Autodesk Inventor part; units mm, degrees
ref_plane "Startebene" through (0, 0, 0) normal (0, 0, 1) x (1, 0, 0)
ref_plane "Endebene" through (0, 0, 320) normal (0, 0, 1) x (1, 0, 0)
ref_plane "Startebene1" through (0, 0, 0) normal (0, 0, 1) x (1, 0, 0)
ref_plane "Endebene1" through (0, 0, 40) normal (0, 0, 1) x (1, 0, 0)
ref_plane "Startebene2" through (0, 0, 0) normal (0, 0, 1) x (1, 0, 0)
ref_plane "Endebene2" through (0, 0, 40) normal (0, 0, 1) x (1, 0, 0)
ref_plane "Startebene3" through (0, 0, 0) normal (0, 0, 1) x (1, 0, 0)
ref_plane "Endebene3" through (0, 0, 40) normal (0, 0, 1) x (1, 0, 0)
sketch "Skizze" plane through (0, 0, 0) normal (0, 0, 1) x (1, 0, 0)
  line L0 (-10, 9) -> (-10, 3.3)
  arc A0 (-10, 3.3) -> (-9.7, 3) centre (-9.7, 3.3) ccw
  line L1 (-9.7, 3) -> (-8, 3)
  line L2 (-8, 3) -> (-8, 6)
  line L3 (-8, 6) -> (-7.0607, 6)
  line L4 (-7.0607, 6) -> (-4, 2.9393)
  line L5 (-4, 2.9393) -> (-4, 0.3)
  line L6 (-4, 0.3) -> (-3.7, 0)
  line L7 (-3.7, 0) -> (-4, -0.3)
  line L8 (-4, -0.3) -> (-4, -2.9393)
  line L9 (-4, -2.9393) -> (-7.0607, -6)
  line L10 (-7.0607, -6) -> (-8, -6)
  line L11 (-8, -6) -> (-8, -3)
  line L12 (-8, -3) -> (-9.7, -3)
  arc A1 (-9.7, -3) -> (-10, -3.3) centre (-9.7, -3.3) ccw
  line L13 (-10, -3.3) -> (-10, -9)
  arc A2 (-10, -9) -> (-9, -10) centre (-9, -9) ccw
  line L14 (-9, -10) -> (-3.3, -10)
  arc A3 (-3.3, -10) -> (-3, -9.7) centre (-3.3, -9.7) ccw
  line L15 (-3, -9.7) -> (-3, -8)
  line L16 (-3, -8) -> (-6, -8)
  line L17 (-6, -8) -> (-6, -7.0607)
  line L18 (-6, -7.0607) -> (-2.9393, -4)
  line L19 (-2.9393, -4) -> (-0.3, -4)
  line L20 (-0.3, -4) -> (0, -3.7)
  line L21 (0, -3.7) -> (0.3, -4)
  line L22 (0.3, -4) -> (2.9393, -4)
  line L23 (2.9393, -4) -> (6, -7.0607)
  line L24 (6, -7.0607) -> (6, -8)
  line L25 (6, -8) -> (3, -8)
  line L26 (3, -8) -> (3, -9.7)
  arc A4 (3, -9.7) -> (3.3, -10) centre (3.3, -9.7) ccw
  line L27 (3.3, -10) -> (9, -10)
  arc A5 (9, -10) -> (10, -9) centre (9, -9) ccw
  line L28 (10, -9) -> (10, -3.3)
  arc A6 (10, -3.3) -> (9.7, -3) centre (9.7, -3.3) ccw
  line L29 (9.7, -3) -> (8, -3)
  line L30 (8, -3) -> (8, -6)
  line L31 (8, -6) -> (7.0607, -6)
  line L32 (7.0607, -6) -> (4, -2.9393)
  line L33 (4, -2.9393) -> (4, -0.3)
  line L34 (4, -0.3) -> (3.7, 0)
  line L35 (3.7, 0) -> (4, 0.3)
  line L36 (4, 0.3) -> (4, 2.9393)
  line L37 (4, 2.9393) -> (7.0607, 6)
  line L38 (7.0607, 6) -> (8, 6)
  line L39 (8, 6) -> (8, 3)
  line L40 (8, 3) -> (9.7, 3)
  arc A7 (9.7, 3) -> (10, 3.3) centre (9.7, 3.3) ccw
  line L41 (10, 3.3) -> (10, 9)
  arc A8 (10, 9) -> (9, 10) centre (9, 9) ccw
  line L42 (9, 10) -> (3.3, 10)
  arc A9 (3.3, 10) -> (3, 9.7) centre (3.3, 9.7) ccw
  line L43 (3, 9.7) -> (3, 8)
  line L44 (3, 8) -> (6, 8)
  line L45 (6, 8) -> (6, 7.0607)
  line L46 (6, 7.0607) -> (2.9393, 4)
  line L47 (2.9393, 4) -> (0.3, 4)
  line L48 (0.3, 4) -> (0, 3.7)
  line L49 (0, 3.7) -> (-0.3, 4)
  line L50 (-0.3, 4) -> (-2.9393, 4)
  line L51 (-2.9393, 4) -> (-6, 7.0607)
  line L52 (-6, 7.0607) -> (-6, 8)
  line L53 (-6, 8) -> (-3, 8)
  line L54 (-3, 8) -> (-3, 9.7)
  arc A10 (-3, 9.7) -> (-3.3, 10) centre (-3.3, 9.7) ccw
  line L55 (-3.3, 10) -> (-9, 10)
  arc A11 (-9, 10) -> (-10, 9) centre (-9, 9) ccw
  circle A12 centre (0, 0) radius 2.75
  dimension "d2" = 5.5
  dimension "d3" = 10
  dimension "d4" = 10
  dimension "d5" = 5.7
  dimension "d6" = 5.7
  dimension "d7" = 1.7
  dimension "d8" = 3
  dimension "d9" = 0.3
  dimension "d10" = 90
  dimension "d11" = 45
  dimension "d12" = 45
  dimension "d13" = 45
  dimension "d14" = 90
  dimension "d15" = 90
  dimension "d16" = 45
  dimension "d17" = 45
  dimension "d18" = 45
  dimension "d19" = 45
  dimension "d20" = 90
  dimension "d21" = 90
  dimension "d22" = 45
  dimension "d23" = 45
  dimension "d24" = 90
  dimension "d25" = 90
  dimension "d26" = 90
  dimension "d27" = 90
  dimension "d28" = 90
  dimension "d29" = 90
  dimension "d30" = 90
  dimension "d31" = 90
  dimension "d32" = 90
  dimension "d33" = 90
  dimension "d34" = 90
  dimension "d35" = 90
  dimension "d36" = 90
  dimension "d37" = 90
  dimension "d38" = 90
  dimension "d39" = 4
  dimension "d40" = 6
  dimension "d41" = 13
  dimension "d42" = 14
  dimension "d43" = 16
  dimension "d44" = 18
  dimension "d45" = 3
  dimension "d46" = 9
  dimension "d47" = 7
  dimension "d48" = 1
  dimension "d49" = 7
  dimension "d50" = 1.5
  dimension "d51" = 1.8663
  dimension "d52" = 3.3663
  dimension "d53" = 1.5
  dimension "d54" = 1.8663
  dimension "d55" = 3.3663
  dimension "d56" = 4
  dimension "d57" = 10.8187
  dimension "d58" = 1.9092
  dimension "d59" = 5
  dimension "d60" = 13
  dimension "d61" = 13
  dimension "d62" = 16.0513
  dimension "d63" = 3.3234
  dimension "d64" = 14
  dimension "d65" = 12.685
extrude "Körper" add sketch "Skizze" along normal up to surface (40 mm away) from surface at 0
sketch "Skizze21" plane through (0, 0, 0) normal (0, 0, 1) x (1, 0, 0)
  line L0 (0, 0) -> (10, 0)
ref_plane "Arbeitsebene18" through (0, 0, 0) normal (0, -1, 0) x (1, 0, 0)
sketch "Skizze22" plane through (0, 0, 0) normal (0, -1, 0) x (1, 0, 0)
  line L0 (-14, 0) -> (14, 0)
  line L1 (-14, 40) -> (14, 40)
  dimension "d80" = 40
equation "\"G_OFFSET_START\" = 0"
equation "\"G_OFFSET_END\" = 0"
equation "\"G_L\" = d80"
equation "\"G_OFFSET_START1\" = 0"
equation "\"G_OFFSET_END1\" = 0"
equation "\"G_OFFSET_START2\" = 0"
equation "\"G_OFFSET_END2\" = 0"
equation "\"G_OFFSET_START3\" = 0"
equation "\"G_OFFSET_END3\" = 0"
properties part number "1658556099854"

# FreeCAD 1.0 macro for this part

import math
import FreeCAD as App
import Part
import Sketcher

V = App.Vector
Q = App.Units.Quantity

doc = App.newDocument("Part")
body = doc.addObject("PartDesign::Body", "Body")

sketch1 = body.newObject("Sketcher::SketchObject", "Sketch")
sketch1.AttachmentSupport = (doc.getObject("XY_Plane"), [""])
sketch1.MapMode = "FlatFace"
sketch1.addGeometry([
    Part.ArcOfCircle(Part.Circle(V(-9, 9, 0), V(0, 0, 1), 1), math.radians(90), math.radians(180)),
    Part.LineSegment(V(-10, 9, 0), V(-10, 3.3, 0)),
    Part.ArcOfCircle(Part.Circle(V(-9.7, 3.3, 0), V(0, 0, 1), 0.3), math.radians(180), math.radians(270)),
    Part.LineSegment(V(-9.7, 3, 0), V(-8, 3, 0)),
    Part.LineSegment(V(-8, 3, 0), V(-8, 6, 0)),
    Part.LineSegment(V(-8, 6, 0), V(-7.06, 6, 0)),
    Part.LineSegment(V(-7.06, 6, 0), V(-4, 2.94, 0)),
    Part.LineSegment(V(-4, 2.94, 0), V(-4, 0.3, 0)),
    Part.LineSegment(V(-4, 0.3, 0), V(-3.7, 0, 0)),
    Part.LineSegment(V(-3.7, 0, 0), V(-4, -0.3, 0)),
    Part.LineSegment(V(-4, -0.3, 0), V(-4, -2.94, 0)),
    Part.LineSegment(V(-4, -2.94, 0), V(-7.06, -6, 0)),
    Part.LineSegment(V(-7.06, -6, 0), V(-8, -6, 0)),
    Part.LineSegment(V(-8, -6, 0), V(-8, -3, 0)),
    Part.LineSegment(V(-8, -3, 0), V(-9.7, -3, 0)),
    Part.ArcOfCircle(Part.Circle(V(-9.7, -3.3, 0), V(0, 0, 1), 0.3), math.radians(90), math.radians(180)),
    Part.LineSegment(V(-10, -3.3, 0), V(-10, -9, 0)),
    Part.ArcOfCircle(Part.Circle(V(-9, -9, 0), V(0, 0, 1), 1), math.radians(180), math.radians(270)),
    Part.LineSegment(V(-9, -10, 0), V(-3.3, -10, 0)),
    Part.ArcOfCircle(Part.Circle(V(-3.3, -9.7, 0), V(0, 0, 1), 0.3), math.radians(-90), math.radians(0)),
    Part.LineSegment(V(-3, -9.7, 0), V(-3, -8, 0)),
    Part.LineSegment(V(-3, -8, 0), V(-6, -8, 0)),
    Part.LineSegment(V(-6, -8, 0), V(-6, -7.06, 0)),
    Part.LineSegment(V(-6, -7.06, 0), V(-2.94, -4, 0)),
    Part.LineSegment(V(-2.94, -4, 0), V(-0.3, -4, 0)),
    Part.LineSegment(V(-0.3, -4, 0), V(0, -3.7, 0)),
    Part.LineSegment(V(0, -3.7, 0), V(0.3, -4, 0)),
    Part.LineSegment(V(0.3, -4, 0), V(2.94, -4, 0)),
    Part.LineSegment(V(2.94, -4, 0), V(6, -7.06, 0)),
    Part.LineSegment(V(6, -7.06, 0), V(6, -8, 0)),
    Part.LineSegment(V(6, -8, 0), V(3, -8, 0)),
    Part.LineSegment(V(3, -8, 0), V(3, -9.7, 0)),
    Part.ArcOfCircle(Part.Circle(V(3.3, -9.7, 0), V(0, 0, 1), 0.3), math.radians(180), math.radians(270)),
    Part.LineSegment(V(3.3, -10, 0), V(9, -10, 0)),
    Part.ArcOfCircle(Part.Circle(V(9, -9, 0), V(0, 0, 1), 1), math.radians(-90), math.radians(0)),
    Part.LineSegment(V(10, -9, 0), V(10, -3.3, 0)),
    Part.ArcOfCircle(Part.Circle(V(9.7, -3.3, 0), V(0, 0, 1), 0.3), math.radians(0), math.radians(90)),
    Part.LineSegment(V(9.7, -3, 0), V(8, -3, 0)),
    Part.LineSegment(V(8, -3, 0), V(8, -6, 0)),
    Part.LineSegment(V(8, -6, 0), V(7.06, -6, 0)),
    Part.LineSegment(V(7.06, -6, 0), V(4, -2.94, 0)),
    Part.LineSegment(V(4, -2.94, 0), V(4, -0.3, 0)),
    Part.LineSegment(V(4, -0.3, 0), V(3.7, 0, 0)),
    Part.LineSegment(V(3.7, 0, 0), V(4, 0.3, 0)),
    Part.LineSegment(V(4, 0.3, 0), V(4, 2.94, 0)),
    Part.LineSegment(V(4, 2.94, 0), V(7.06, 6, 0)),
    Part.LineSegment(V(7.06, 6, 0), V(8, 6, 0)),
    Part.LineSegment(V(8, 6, 0), V(8, 3, 0)),
    Part.LineSegment(V(8, 3, 0), V(9.7, 3, 0)),
    Part.ArcOfCircle(Part.Circle(V(9.7, 3.3, 0), V(0, 0, 1), 0.3), math.radians(-90), math.radians(0)),
    Part.LineSegment(V(10, 3.3, 0), V(10, 9, 0)),
    Part.ArcOfCircle(Part.Circle(V(9, 9, 0), V(0, 0, 1), 1), math.radians(0), math.radians(90)),
    Part.LineSegment(V(9, 10, 0), V(3.3, 10, 0)),
    Part.ArcOfCircle(Part.Circle(V(3.3, 9.7, 0), V(0, 0, 1), 0.3), math.radians(90), math.radians(180)),
    Part.LineSegment(V(3, 9.7, 0), V(3, 8, 0)),
    Part.LineSegment(V(3, 8, 0), V(6, 8, 0)),
    Part.LineSegment(V(6, 8, 0), V(6, 7.06, 0)),
    Part.LineSegment(V(6, 7.06, 0), V(2.94, 4, 0)),
    Part.LineSegment(V(2.94, 4, 0), V(0.3, 4, 0)),
    Part.LineSegment(V(0.3, 4, 0), V(0, 3.7, 0)),
    Part.LineSegment(V(0, 3.7, 0), V(-0.3, 4, 0)),
    Part.LineSegment(V(-0.3, 4, 0), V(-2.94, 4, 0)),
    Part.LineSegment(V(-2.94, 4, 0), V(-6, 7.06, 0)),
    Part.LineSegment(V(-6, 7.06, 0), V(-6, 8, 0)),
    Part.LineSegment(V(-6, 8, 0), V(-3, 8, 0)),
    Part.LineSegment(V(-3, 8, 0), V(-3, 9.7, 0)),
    Part.ArcOfCircle(Part.Circle(V(-3.3, 9.7, 0), V(0, 0, 1), 0.3), math.radians(0), math.radians(90)),
    Part.LineSegment(V(-3.3, 10, 0), V(-9, 10, 0)),
    Part.Circle(V(0, 0, 0), V(0, 0, 1), 2.75),
], False)
sketch1.addConstraint([
    Sketcher.Constraint("Tangent", 0, 2, 1, 1),
    Sketcher.Constraint("Tangent", 1, 2, 2, 1),
    Sketcher.Constraint("Tangent", 2, 2, 3, 1),
    Sketcher.Constraint("Coincident", 3, 2, 4, 1),
    Sketcher.Constraint("Coincident", 4, 2, 5, 1),
    Sketcher.Constraint("Coincident", 5, 2, 6, 1),
    Sketcher.Constraint("Coincident", 6, 2, 7, 1),
    Sketcher.Constraint("Coincident", 7, 2, 8, 1),
    Sketcher.Constraint("Coincident", 8, 2, 9, 1),
    Sketcher.Constraint("Coincident", 9, 2, 10, 1),
    Sketcher.Constraint("Coincident", 10, 2, 11, 1),
    Sketcher.Constraint("Coincident", 11, 2, 12, 1),
    Sketcher.Constraint("Coincident", 12, 2, 13, 1),
    Sketcher.Constraint("Coincident", 13, 2, 14, 1),
    Sketcher.Constraint("Tangent", 14, 2, 15, 1),
    Sketcher.Constraint("Tangent", 15, 2, 16, 1),
    Sketcher.Constraint("Tangent", 16, 2, 17, 1),
    Sketcher.Constraint("Tangent", 17, 2, 18, 1),
    Sketcher.Constraint("Tangent", 18, 2, 19, 1),
    Sketcher.Constraint("Tangent", 19, 2, 20, 1),
    Sketcher.Constraint("Coincident", 20, 2, 21, 1),
    Sketcher.Constraint("Coincident", 21, 2, 22, 1),
    Sketcher.Constraint("Coincident", 22, 2, 23, 1),
    Sketcher.Constraint("Coincident", 23, 2, 24, 1),
    Sketcher.Constraint("Coincident", 24, 2, 25, 1),
    Sketcher.Constraint("Coincident", 25, 2, 26, 1),
    Sketcher.Constraint("Coincident", 26, 2, 27, 1),
    Sketcher.Constraint("Coincident", 27, 2, 28, 1),
    Sketcher.Constraint("Coincident", 28, 2, 29, 1),
    Sketcher.Constraint("Coincident", 29, 2, 30, 1),
    Sketcher.Constraint("Coincident", 30, 2, 31, 1),
    Sketcher.Constraint("Tangent", 31, 2, 32, 1),
    Sketcher.Constraint("Tangent", 32, 2, 33, 1),
    Sketcher.Constraint("Tangent", 33, 2, 34, 1),
    Sketcher.Constraint("Tangent", 34, 2, 35, 1),
    Sketcher.Constraint("Tangent", 35, 2, 36, 1),
    Sketcher.Constraint("Tangent", 36, 2, 37, 1),
    Sketcher.Constraint("Coincident", 37, 2, 38, 1),
    Sketcher.Constraint("Coincident", 38, 2, 39, 1),
    Sketcher.Constraint("Coincident", 39, 2, 40, 1),
    Sketcher.Constraint("Coincident", 40, 2, 41, 1),
    Sketcher.Constraint("Coincident", 41, 2, 42, 1),
    Sketcher.Constraint("Coincident", 42, 2, 43, 1),
    Sketcher.Constraint("Coincident", 43, 2, 44, 1),
    Sketcher.Constraint("Coincident", 44, 2, 45, 1),
    Sketcher.Constraint("Coincident", 45, 2, 46, 1),
    Sketcher.Constraint("Coincident", 46, 2, 47, 1),
    Sketcher.Constraint("Coincident", 47, 2, 48, 1),
    Sketcher.Constraint("Tangent", 48, 2, 49, 1),
    Sketcher.Constraint("Tangent", 49, 2, 50, 1),
    Sketcher.Constraint("Tangent", 50, 2, 51, 1),
    Sketcher.Constraint("Tangent", 51, 2, 52, 1),
    Sketcher.Constraint("Tangent", 52, 2, 53, 1),
    Sketcher.Constraint("Tangent", 53, 2, 54, 1),
    Sketcher.Constraint("Coincident", 54, 2, 55, 1),
    Sketcher.Constraint("Coincident", 55, 2, 56, 1),
    Sketcher.Constraint("Coincident", 56, 2, 57, 1),
    Sketcher.Constraint("Coincident", 57, 2, 58, 1),
    Sketcher.Constraint("Coincident", 58, 2, 59, 1),
    Sketcher.Constraint("Coincident", 59, 2, 60, 1),
    Sketcher.Constraint("Coincident", 60, 2, 61, 1),
    Sketcher.Constraint("Coincident", 61, 2, 62, 1),
    Sketcher.Constraint("Coincident", 62, 2, 63, 1),
    Sketcher.Constraint("Coincident", 63, 2, 64, 1),
    Sketcher.Constraint("Coincident", 64, 2, 65, 1),
    Sketcher.Constraint("Tangent", 65, 2, 66, 1),
    Sketcher.Constraint("Tangent", 66, 2, 67, 1),
    Sketcher.Constraint("Tangent", 67, 2, 0, 1),
    Sketcher.Constraint("Vertical", 1),
    Sketcher.Constraint("Horizontal", 3),
    Sketcher.Constraint("Vertical", 4),
    Sketcher.Constraint("Horizontal", 5),
    Sketcher.Constraint("Vertical", 7),
    Sketcher.Constraint("Vertical", 10),
    Sketcher.Constraint("Horizontal", 12),
    Sketcher.Constraint("Vertical", 13),
    Sketcher.Constraint("Horizontal", 14),
    Sketcher.Constraint("Vertical", 16),
    Sketcher.Constraint("Horizontal", 18),
    Sketcher.Constraint("Vertical", 20),
    Sketcher.Constraint("Horizontal", 21),
    Sketcher.Constraint("Vertical", 22),
    Sketcher.Constraint("Horizontal", 24),
    Sketcher.Constraint("Horizontal", 27),
    Sketcher.Constraint("Vertical", 29),
    Sketcher.Constraint("Horizontal", 30),
    Sketcher.Constraint("Vertical", 31),
    Sketcher.Constraint("Horizontal", 33),
    Sketcher.Constraint("Vertical", 35),
    Sketcher.Constraint("Horizontal", 37),
    Sketcher.Constraint("Vertical", 38),
    Sketcher.Constraint("Horizontal", 39),
    Sketcher.Constraint("Vertical", 41),
    Sketcher.Constraint("Vertical", 44),
    Sketcher.Constraint("Horizontal", 46),
    Sketcher.Constraint("Vertical", 47),
    Sketcher.Constraint("Horizontal", 48),
    Sketcher.Constraint("Vertical", 50),
    Sketcher.Constraint("Horizontal", 52),
    Sketcher.Constraint("Vertical", 54),
    Sketcher.Constraint("Horizontal", 55),
    Sketcher.Constraint("Vertical", 56),
    Sketcher.Constraint("Horizontal", 58),
    Sketcher.Constraint("Horizontal", 61),
    Sketcher.Constraint("Vertical", 63),
    Sketcher.Constraint("Horizontal", 64),
    Sketcher.Constraint("Vertical", 65),
    Sketcher.Constraint("Horizontal", 67),
    Sketcher.Constraint("Coincident", 68, 3, -1, 1),
    Sketcher.Constraint("Equal", 2, 15),
    Sketcher.Constraint("Equal", 0, 17),
    Sketcher.Constraint("Equal", 15, 19),
    Sketcher.Constraint("Equal", 19, 32),
    Sketcher.Constraint("Equal", 17, 34),
    Sketcher.Constraint("Equal", 32, 36),
    Sketcher.Constraint("Equal", 36, 49),
    Sketcher.Constraint("Equal", 34, 51),
    Sketcher.Constraint("Equal", 49, 53),
    Sketcher.Constraint("Equal", 53, 66),
    Sketcher.Constraint("Symmetric", 0, 3, 34, 3, -1, 1),
    Sketcher.Constraint("Symmetric", 15, 3, 49, 3, -1, 1),
    Sketcher.Constraint("Symmetric", 19, 3, 53, 3, -1, 1),
    Sketcher.Constraint("Symmetric", 3, 2, 37, 2, -1, 1),
    Sketcher.Constraint("Symmetric", 5, 2, 39, 2, -1, 1),
    Sketcher.Constraint("Symmetric", 6, 2, 40, 2, -1, 1),
    Sketcher.Constraint("Symmetric", 8, 2, 42, 2, -1, 1),
    Sketcher.Constraint("Symmetric", 9, 2, 43, 2, -1, 1),
    Sketcher.Constraint("Symmetric", 11, 2, 45, 2, -1, 1),
    Sketcher.Constraint("Symmetric", 21, 2, 55, 2, -1, 1),
    Sketcher.Constraint("Symmetric", 23, 2, 57, 2, -1, 1),
    Sketcher.Constraint("Symmetric", 25, 2, 59, 2, -1, 1),
    Sketcher.Constraint("Symmetric", 26, 2, 60, 2, -1, 1),
    Sketcher.Constraint("Symmetric", 28, 2, 62, 2, -1, 1),
    Sketcher.Constraint("Symmetric", 30, 2, 64, 2, -1, 1),
    Sketcher.Constraint("Symmetric", 19, 3, 32, 3, -2),
    Sketcher.Constraint("Symmetric", 15, 3, 36, 3, -2),
    Sketcher.Constraint("Symmetric", 24, 2, 26, 2, -2),
    Sketcher.Constraint("Symmetric", 22, 2, 28, 2, -2),
    Sketcher.Constraint("Symmetric", 12, 2, 38, 2, -2),
    Sketcher.Constraint("Symmetric", 10, 2, 40, 2, -2),
    Sketcher.Constraint("PointOnObject", 8, 2, -1),
    Sketcher.Constraint("PointOnObject", 25, 2, -2),
    Sketcher.Constraint("Parallel", 6, 8),
    Sketcher.Constraint("Perpendicular", 8, 9),
    Sketcher.Constraint("Parallel", 9, 11),
    Sketcher.Constraint("Parallel", 11, 23),
    Sketcher.Constraint("Parallel", 23, 25),
    Sketcher.Constraint("Perpendicular", 25, 26),
    Sketcher.Constraint("Parallel", 26, 28),
    Sketcher.Constraint("Parallel", 40, 42),
    Sketcher.Constraint("Parallel", 43, 45),
    Sketcher.Constraint("Parallel", 45, 57),
    Sketcher.Constraint("Parallel", 57, 59),
    Sketcher.Constraint("Parallel", 60, 62),
    Sketcher.Constraint("Horizontal", 21, 2, 29, 2),
    Sketcher.Constraint("Vertical", 38, 2, 46, 2),
    Sketcher.Constraint("Equal", 67, 1),
    Sketcher.Constraint("Equal", 64, 4),
    Sketcher.Constraint("Equal", 61, 7),
    Sketcher.Constraint("Equal", 48, 20),
    Sketcher.Constraint("Equal", 46, 22),
    Sketcher.Constraint("Equal", 11, 23),
    Sketcher.Constraint("Equal", 9, 25),
    Sketcher.Constraint("Radius", 0, Q("1 mm")),
    Sketcher.Constraint("Diameter", 68, Q("5.5 mm")),
    Sketcher.Constraint("Radius", 2, Q("0.3 mm")),
    Sketcher.Constraint("DistanceX", 21, 2, 21, 1, Q("3 mm")),
    Sketcher.Constraint("DistanceX", 3, 1, 3, 2, Q("1.7 mm")),
    Sketcher.Constraint("DistanceX", 18, 1, 18, 2, Q("5.7 mm")),
    Sketcher.Constraint("DistanceX", 0, 3, -1, 1, Q("9 mm")),
    Sketcher.Constraint("DistanceX", 6, 2, -1, 1, Q("4 mm")),
    Sketcher.Constraint("DistanceY", -1, 1, 7, 2, Q("0.3 mm")),
    Sketcher.Constraint("DistanceX", 5, 1, 5, 2, Q("0.9393 mm")),
])
pad1 = body.newObject("PartDesign::Pad", "Pad")
pad1.Profile = sketch1
pad1.Length = 40

doc.recompute()
